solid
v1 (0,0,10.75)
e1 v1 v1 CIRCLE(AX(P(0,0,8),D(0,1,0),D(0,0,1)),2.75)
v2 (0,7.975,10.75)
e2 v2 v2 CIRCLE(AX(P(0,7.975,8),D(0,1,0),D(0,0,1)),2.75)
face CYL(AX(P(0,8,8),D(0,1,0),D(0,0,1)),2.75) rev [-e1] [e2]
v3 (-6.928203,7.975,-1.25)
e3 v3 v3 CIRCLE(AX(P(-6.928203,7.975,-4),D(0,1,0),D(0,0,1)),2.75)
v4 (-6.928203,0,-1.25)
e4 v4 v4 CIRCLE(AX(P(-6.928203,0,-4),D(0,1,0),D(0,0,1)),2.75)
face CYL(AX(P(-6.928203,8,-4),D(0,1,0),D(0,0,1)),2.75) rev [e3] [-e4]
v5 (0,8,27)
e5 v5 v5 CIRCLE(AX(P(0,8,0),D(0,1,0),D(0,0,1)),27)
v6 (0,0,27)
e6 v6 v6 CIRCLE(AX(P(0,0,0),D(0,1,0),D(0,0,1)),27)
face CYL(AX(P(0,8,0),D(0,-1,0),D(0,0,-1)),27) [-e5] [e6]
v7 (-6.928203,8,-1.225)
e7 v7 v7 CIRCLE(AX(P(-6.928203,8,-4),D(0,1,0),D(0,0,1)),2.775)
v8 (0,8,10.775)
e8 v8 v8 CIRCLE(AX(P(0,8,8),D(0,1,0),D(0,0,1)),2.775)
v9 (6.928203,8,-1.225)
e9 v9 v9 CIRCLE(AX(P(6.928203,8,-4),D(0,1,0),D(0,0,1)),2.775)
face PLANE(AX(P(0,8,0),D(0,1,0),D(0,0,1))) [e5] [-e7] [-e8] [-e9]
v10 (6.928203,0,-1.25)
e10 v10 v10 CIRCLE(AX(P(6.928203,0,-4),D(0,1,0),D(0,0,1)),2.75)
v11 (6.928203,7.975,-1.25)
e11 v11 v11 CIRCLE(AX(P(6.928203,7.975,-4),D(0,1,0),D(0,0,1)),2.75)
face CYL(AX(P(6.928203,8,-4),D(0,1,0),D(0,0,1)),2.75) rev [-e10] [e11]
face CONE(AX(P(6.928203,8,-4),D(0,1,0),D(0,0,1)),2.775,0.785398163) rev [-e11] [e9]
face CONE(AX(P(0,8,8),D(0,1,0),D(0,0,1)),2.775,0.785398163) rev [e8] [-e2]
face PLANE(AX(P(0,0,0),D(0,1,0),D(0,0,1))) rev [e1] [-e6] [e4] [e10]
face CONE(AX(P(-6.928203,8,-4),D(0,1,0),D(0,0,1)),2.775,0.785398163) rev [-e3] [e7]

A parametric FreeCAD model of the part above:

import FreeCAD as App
import Part
import Sketcher

V = App.Vector
Q = App.Units.Quantity

doc = App.newDocument("Part")
body = doc.addObject("PartDesign::Body", "Body")

# Sketch on XZ plane
sketch1 = doc.addObject("Sketcher::SketchObject", "Sketch")
body.addObject(sketch1)
sketch1.AttachmentSupport = (doc.XZ_Plane, [""])
sketch1.MapMode = "FlatFace"
sketch1.addGeometry(Part.Circle(V(0, 0, 0), V(0, 0, 1), 27), False)
sketch1.addConstraint([
    Sketcher.Constraint("Coincident", 0, 3, -1, 1),
    Sketcher.Constraint("Diameter", 0, Q("54 mm")),
])
pad1 = doc.addObject("PartDesign::Pad", "Pad")
body.addObject(pad1)
pad1.Profile = sketch1
pad1.Length = 8
pad1.Reversed = True

# Sketch on XZ plane
sketch2 = doc.addObject("Sketcher::SketchObject", "Sketch001")
body.addObject(sketch2)
sketch2.AttachmentSupport = (doc.XZ_Plane, [""])
sketch2.MapMode = "FlatFace"
sketch2.AttachmentOffset = App.Placement(V(0, 0, -8), App.Rotation())
sketch2.addGeometry([
    Part.Circle(V(-6.9, -4, 0), V(0, 0, 1), 2.8),
    Part.Circle(V(6.9, -4, 0), V(0, 0, 1), 2.8),
    Part.Circle(V(0, 8, 0), V(0, 0, 1), 2.8),
], False)
sketch2.addConstraint([
    Sketcher.Constraint("Equal", 0, 1),
    Sketcher.Constraint("Equal", 1, 2),
    Sketcher.Constraint("Symmetric", 0, 3, 1, 3, -2),
    Sketcher.Constraint("PointOnObject", 2, 3, -2),
    Sketcher.Constraint("Diameter", 0, Q("5.5 mm")),
    Sketcher.Constraint("DistanceY", 0, 3, -1, 1, Q("4 mm")),
    Sketcher.Constraint("DistanceY", -1, 1, 2, 3, Q("8 mm")),
    Sketcher.Constraint("DistanceX", 0, 3, -1, 1, Q("6.928203 mm")),
])
doc.recompute()
hole = doc.addObject("PartDesign::Hole", "Hole")
body.addObject(hole)
hole.Profile = sketch2
hole.ThreadType = "None"
hole.Diameter = 5.5
hole.DepthType = "ThroughAll"
hole.HoleCutType = "Countersink"
hole.HoleCutDiameter = 5.55
hole.HoleCutCountersinkAngle = 90
hole.Reversed = True

doc.recompute()
